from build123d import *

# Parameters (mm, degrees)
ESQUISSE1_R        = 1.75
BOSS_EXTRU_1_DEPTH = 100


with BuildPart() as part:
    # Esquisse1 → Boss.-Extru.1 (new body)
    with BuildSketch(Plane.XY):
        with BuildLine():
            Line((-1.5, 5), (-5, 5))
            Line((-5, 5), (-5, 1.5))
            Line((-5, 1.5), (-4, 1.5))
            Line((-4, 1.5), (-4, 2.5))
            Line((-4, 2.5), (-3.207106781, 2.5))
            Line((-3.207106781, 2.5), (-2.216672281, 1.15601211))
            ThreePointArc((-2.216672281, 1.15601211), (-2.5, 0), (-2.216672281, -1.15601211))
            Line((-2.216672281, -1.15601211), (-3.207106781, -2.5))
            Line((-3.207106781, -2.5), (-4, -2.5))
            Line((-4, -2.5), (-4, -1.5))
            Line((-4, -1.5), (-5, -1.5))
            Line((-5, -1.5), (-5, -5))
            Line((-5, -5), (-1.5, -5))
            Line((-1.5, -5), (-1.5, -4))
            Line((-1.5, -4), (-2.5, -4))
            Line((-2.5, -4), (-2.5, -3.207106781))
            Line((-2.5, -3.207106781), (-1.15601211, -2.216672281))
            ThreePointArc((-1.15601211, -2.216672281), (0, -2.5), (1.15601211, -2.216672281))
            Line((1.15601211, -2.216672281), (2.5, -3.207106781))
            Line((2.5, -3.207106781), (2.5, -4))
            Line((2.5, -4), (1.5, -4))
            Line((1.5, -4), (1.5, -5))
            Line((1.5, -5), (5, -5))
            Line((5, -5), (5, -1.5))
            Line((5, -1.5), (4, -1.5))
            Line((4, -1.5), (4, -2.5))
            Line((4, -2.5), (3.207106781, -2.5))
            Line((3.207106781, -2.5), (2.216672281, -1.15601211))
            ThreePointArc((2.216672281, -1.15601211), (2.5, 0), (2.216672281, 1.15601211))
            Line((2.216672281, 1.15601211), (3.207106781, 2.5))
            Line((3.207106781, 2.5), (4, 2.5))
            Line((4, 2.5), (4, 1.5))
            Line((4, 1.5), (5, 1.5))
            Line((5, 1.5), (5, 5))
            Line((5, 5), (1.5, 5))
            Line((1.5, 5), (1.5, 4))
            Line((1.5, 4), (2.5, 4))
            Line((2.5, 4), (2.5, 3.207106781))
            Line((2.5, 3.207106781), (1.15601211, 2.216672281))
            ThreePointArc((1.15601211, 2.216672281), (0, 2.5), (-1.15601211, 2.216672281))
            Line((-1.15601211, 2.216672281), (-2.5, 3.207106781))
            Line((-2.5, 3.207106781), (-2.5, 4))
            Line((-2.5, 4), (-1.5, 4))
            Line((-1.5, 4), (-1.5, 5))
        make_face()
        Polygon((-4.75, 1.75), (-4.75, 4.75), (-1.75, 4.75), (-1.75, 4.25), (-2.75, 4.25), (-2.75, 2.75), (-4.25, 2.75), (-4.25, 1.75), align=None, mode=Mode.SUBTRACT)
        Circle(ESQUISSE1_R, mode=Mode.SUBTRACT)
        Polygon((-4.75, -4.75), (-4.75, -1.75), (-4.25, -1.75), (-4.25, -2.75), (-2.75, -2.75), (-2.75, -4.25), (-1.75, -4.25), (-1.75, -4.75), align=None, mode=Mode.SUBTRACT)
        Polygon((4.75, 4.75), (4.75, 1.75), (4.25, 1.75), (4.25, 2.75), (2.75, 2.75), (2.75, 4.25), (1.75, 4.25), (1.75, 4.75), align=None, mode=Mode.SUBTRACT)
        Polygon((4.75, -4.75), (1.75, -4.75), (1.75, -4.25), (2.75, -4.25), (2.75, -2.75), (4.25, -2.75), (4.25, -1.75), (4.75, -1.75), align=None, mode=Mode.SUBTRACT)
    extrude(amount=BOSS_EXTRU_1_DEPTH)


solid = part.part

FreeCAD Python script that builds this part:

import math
import FreeCAD as App
import Part
import Sketcher
from FreeCAD import Vector
Q = App.Units.Quantity

doc = App.newDocument("Part")
body = doc.addObject("PartDesign::Body", "Body")

# Sketch on XY plane
sketch1 = body.newObject("Sketcher::SketchObject", "Sketch")
sketch1.AttachmentSupport = (doc.getObject("XY_Plane"), [""])
sketch1.MapMode = "FlatFace"
sketch1.addGeometry([
    Part.LineSegment(Vector(-1.5, 5, 0), Vector(-5, 5, 0)),  # 0
    Part.LineSegment(Vector(-5, 5, 0), Vector(-5, 1.5, 0)),  # 1
    Part.LineSegment(Vector(-5, 1.5, 0), Vector(-4, 1.5, 0)),  # 2
    Part.LineSegment(Vector(-4, 1.5, 0), Vector(-4, 2.5, 0)),  # 3
    Part.LineSegment(Vector(-4, 2.5, 0), Vector(-3.2, 2.5, 0)),  # 4
    Part.LineSegment(Vector(-3.2, 2.5, 0), Vector(-2.2, 1.2, 0)),  # 5
    Part.ArcOfCircle(Part.Circle(Vector(0, 0, 0), Vector(0, 0, 1), 2.5), math.radians(152), math.radians(208)),  # 6
    Part.LineSegment(Vector(-2.2, -1.2, 0), Vector(-3.2, -2.5, 0)),  # 7
    Part.LineSegment(Vector(-3.2, -2.5, 0), Vector(-4, -2.5, 0)),  # 8
    Part.LineSegment(Vector(-4, -2.5, 0), Vector(-4, -1.5, 0)),  # 9
    Part.LineSegment(Vector(-4, -1.5, 0), Vector(-5, -1.5, 0)),  # 10
    Part.LineSegment(Vector(-5, -1.5, 0), Vector(-5, -5, 0)),  # 11
    Part.LineSegment(Vector(-5, -5, 0), Vector(-1.5, -5, 0)),  # 12
    Part.LineSegment(Vector(-1.5, -5, 0), Vector(-1.5, -4, 0)),  # 13
    Part.LineSegment(Vector(-1.5, -4, 0), Vector(-2.5, -4, 0)),  # 14
    Part.LineSegment(Vector(-2.5, -4, 0), Vector(-2.5, -3.2, 0)),  # 15
    Part.LineSegment(Vector(-2.5, -3.2, 0), Vector(-1.2, -2.2, 0)),  # 16
    Part.ArcOfCircle(Part.Circle(Vector(0, 0, 0), Vector(0, 0, 1), 2.5), math.radians(-118), math.radians(-62)),  # 17
    Part.LineSegment(Vector(1.2, -2.2, 0), Vector(2.5, -3.2, 0)),  # 18
    Part.LineSegment(Vector(2.5, -3.2, 0), Vector(2.5, -4, 0)),  # 19
    Part.LineSegment(Vector(2.5, -4, 0), Vector(1.5, -4, 0)),  # 20
    Part.LineSegment(Vector(1.5, -4, 0), Vector(1.5, -5, 0)),  # 21
    Part.LineSegment(Vector(1.5, -5, 0), Vector(5, -5, 0)),  # 22
    Part.LineSegment(Vector(5, -5, 0), Vector(5, -1.5, 0)),  # 23
    Part.LineSegment(Vector(5, -1.5, 0), Vector(4, -1.5, 0)),  # 24
    Part.LineSegment(Vector(4, -1.5, 0), Vector(4, -2.5, 0)),  # 25
    Part.LineSegment(Vector(4, -2.5, 0), Vector(3.2, -2.5, 0)),  # 26
    Part.LineSegment(Vector(3.2, -2.5, 0), Vector(2.2, -1.2, 0)),  # 27
    Part.ArcOfCircle(Part.Circle(Vector(0, 0, 0), Vector(0, 0, 1), 2.5), math.radians(-28), math.radians(28)),  # 28
    Part.LineSegment(Vector(2.2, 1.2, 0), Vector(3.2, 2.5, 0)),  # 29
    Part.LineSegment(Vector(3.2, 2.5, 0), Vector(4, 2.5, 0)),  # 30
    Part.LineSegment(Vector(4, 2.5, 0), Vector(4, 1.5, 0)),  # 31
    Part.LineSegment(Vector(4, 1.5, 0), Vector(5, 1.5, 0)),  # 32
    Part.LineSegment(Vector(5, 1.5, 0), Vector(5, 5, 0)),  # 33
    Part.LineSegment(Vector(5, 5, 0), Vector(1.5, 5, 0)),  # 34
    Part.LineSegment(Vector(1.5, 5, 0), Vector(1.5, 4, 0)),  # 35
    Part.LineSegment(Vector(1.5, 4, 0), Vector(2.5, 4, 0)),  # 36
    Part.LineSegment(Vector(2.5, 4, 0), Vector(2.5, 3.2, 0)),  # 37
    Part.LineSegment(Vector(2.5, 3.2, 0), Vector(1.2, 2.2, 0)),  # 38
    Part.ArcOfCircle(Part.Circle(Vector(0, 0, 0), Vector(0, 0, 1), 2.5), math.radians(62), math.radians(118)),  # 39
    Part.LineSegment(Vector(-1.2, 2.2, 0), Vector(-2.5, 3.2, 0)),  # 40
    Part.LineSegment(Vector(-2.5, 3.2, 0), Vector(-2.5, 4, 0)),  # 41
    Part.LineSegment(Vector(-2.5, 4, 0), Vector(-1.5, 4, 0)),  # 42
    Part.LineSegment(Vector(-1.5, 4, 0), Vector(-1.5, 5, 0)),  # 43
    Part.LineSegment(Vector(-1.8, -4.8, 0), Vector(-4.8, -4.8, 0)),  # 44
    Part.LineSegment(Vector(-4.8, -4.8, 0), Vector(-4.8, -1.8, 0)),  # 45
    Part.LineSegment(Vector(-4.8, -1.8, 0), Vector(-4.2, -1.8, 0)),  # 46
    Part.LineSegment(Vector(-4.2, -1.8, 0), Vector(-4.2, -2.8, 0)),  # 47
    Part.LineSegment(Vector(-4.2, -2.8, 0), Vector(-2.8, -2.8, 0)),  # 48
    Part.LineSegment(Vector(-2.8, -2.8, 0), Vector(-2.8, -4.2, 0)),  # 49
    Part.LineSegment(Vector(-2.8, -4.2, 0), Vector(-1.8, -4.2, 0)),  # 50
    Part.LineSegment(Vector(-1.8, -4.2, 0), Vector(-1.8, -4.8, 0)),  # 51
    Part.LineSegment(Vector(4.8, -1.8, 0), Vector(4.8, -4.8, 0)),  # 52
    Part.LineSegment(Vector(4.8, -4.8, 0), Vector(1.8, -4.8, 0)),  # 53
    Part.LineSegment(Vector(1.8, -4.8, 0), Vector(1.8, -4.2, 0)),  # 54
    Part.LineSegment(Vector(1.8, -4.2, 0), Vector(2.8, -4.2, 0)),  # 55
    Part.LineSegment(Vector(2.8, -4.2, 0), Vector(2.8, -2.8, 0)),  # 56
    Part.LineSegment(Vector(2.8, -2.8, 0), Vector(4.2, -2.8, 0)),  # 57
    Part.LineSegment(Vector(4.2, -2.8, 0), Vector(4.2, -1.8, 0)),  # 58
    Part.LineSegment(Vector(4.2, -1.8, 0), Vector(4.8, -1.8, 0)),  # 59
    Part.LineSegment(Vector(-4.2, 1.8, 0), Vector(-4.8, 1.8, 0)),  # 60
    Part.LineSegment(Vector(-4.8, 1.8, 0), Vector(-4.8, 4.8, 0)),  # 61
    Part.LineSegment(Vector(-4.8, 4.8, 0), Vector(-1.8, 4.8, 0)),  # 62
    Part.LineSegment(Vector(-1.8, 4.8, 0), Vector(-1.8, 4.2, 0)),  # 63
    Part.LineSegment(Vector(-1.8, 4.2, 0), Vector(-2.8, 4.2, 0)),  # 64
    Part.LineSegment(Vector(-2.8, 4.2, 0), Vector(-2.8, 2.8, 0)),  # 65
    Part.LineSegment(Vector(-2.8, 2.8, 0), Vector(-4.2, 2.8, 0)),  # 66
    Part.LineSegment(Vector(-4.2, 2.8, 0), Vector(-4.2, 1.8, 0)),  # 67
    Part.Circle(Vector(0, 0, 0), Vector(0, 0, 1), 1.8),  # 68
    Part.LineSegment(Vector(1.8, 4.8, 0), Vector(4.8, 4.8, 0)),  # 69
    Part.LineSegment(Vector(4.8, 4.8, 0), Vector(4.8, 1.8, 0)),  # 70
    Part.LineSegment(Vector(4.8, 1.8, 0), Vector(4.2, 1.8, 0)),  # 71
    Part.LineSegment(Vector(4.2, 1.8, 0), Vector(4.2, 2.8, 0)),  # 72
    Part.LineSegment(Vector(4.2, 2.8, 0), Vector(2.8, 2.8, 0)),  # 73
    Part.LineSegment(Vector(2.8, 2.8, 0), Vector(2.8, 4.2, 0)),  # 74
    Part.LineSegment(Vector(2.8, 4.2, 0), Vector(1.8, 4.2, 0)),  # 75
    Part.LineSegment(Vector(1.8, 4.2, 0), Vector(1.8, 4.8, 0)),  # 76
], False)
sketch1.addConstraint([
    Sketcher.Constraint("Coincident", 0, 2, 1, 1),
    Sketcher.Constraint("Coincident", 1, 2, 2, 1),
    Sketcher.Constraint("Coincident", 2, 2, 3, 1),
    Sketcher.Constraint("Coincident", 3, 2, 4, 1),
    Sketcher.Constraint("Coincident", 4, 2, 5, 1),
    Sketcher.Constraint("Coincident", 5, 2, 6, 1),
    Sketcher.Constraint("Coincident", 6, 2, 7, 1),
    Sketcher.Constraint("Coincident", 7, 2, 8, 1),
    Sketcher.Constraint("Coincident", 8, 2, 9, 1),
    Sketcher.Constraint("Coincident", 9, 2, 10, 1),
    Sketcher.Constraint("Coincident", 10, 2, 11, 1),
    Sketcher.Constraint("Coincident", 11, 2, 12, 1),
    Sketcher.Constraint("Coincident", 12, 2, 13, 1),
    Sketcher.Constraint("Coincident", 13, 2, 14, 1),
    Sketcher.Constraint("Coincident", 14, 2, 15, 1),
    Sketcher.Constraint("Coincident", 15, 2, 16, 1),
    Sketcher.Constraint("Coincident", 16, 2, 17, 1),
    Sketcher.Constraint("Coincident", 17, 2, 18, 1),
    Sketcher.Constraint("Coincident", 18, 2, 19, 1),
    Sketcher.Constraint("Coincident", 19, 2, 20, 1),
    Sketcher.Constraint("Coincident", 20, 2, 21, 1),
    Sketcher.Constraint("Coincident", 21, 2, 22, 1),
    Sketcher.Constraint("Coincident", 22, 2, 23, 1),
    Sketcher.Constraint("Coincident", 23, 2, 24, 1),
    Sketcher.Constraint("Coincident", 24, 2, 25, 1),
    Sketcher.Constraint("Coincident", 25, 2, 26, 1),
    Sketcher.Constraint("Coincident", 26, 2, 27, 1),
    Sketcher.Constraint("Coincident", 27, 2, 28, 1),
    Sketcher.Constraint("Coincident", 28, 2, 29, 1),
    Sketcher.Constraint("Coincident", 29, 2, 30, 1),
    Sketcher.Constraint("Coincident", 30, 2, 31, 1),
    Sketcher.Constraint("Coincident", 31, 2, 32, 1),
    Sketcher.Constraint("Coincident", 32, 2, 33, 1),
    Sketcher.Constraint("Coincident", 33, 2, 34, 1),
    Sketcher.Constraint("Coincident", 34, 2, 35, 1),
    Sketcher.Constraint("Coincident", 35, 2, 36, 1),
    Sketcher.Constraint("Coincident", 36, 2, 37, 1),
    Sketcher.Constraint("Coincident", 37, 2, 38, 1),
    Sketcher.Constraint("Coincident", 38, 2, 39, 1),
    Sketcher.Constraint("Coincident", 39, 2, 40, 1),
    Sketcher.Constraint("Coincident", 40, 2, 41, 1),
    Sketcher.Constraint("Coincident", 41, 2, 42, 1),
    Sketcher.Constraint("Coincident", 42, 2, 43, 1),
    Sketcher.Constraint("Coincident", 43, 2, 0, 1),
    Sketcher.Constraint("Coincident", 44, 2, 45, 1),
    Sketcher.Constraint("Coincident", 45, 2, 46, 1),
    Sketcher.Constraint("Coincident", 46, 2, 47, 1),
    Sketcher.Constraint("Coincident", 47, 2, 48, 1),
    Sketcher.Constraint("Coincident", 48, 2, 49, 1),
    Sketcher.Constraint("Coincident", 49, 2, 50, 1),
    Sketcher.Constraint("Coincident", 50, 2, 51, 1),
    Sketcher.Constraint("Coincident", 51, 2, 44, 1),
    Sketcher.Constraint("Coincident", 52, 2, 53, 1),
    Sketcher.Constraint("Coincident", 53, 2, 54, 1),
    Sketcher.Constraint("Coincident", 54, 2, 55, 1),
    Sketcher.Constraint("Coincident", 55, 2, 56, 1),
    Sketcher.Constraint("Coincident", 56, 2, 57, 1),
    Sketcher.Constraint("Coincident", 57, 2, 58, 1),
    Sketcher.Constraint("Coincident", 58, 2, 59, 1),
    Sketcher.Constraint("Coincident", 59, 2, 52, 1),
    Sketcher.Constraint("Coincident", 60, 2, 61, 1),
    Sketcher.Constraint("Coincident", 61, 2, 62, 1),
    Sketcher.Constraint("Coincident", 62, 2, 63, 1),
    Sketcher.Constraint("Coincident", 63, 2, 64, 1),
    Sketcher.Constraint("Coincident", 64, 2, 65, 1),
    Sketcher.Constraint("Coincident", 65, 2, 66, 1),
    Sketcher.Constraint("Coincident", 66, 2, 67, 1),
    Sketcher.Constraint("Coincident", 67, 2, 60, 1),
    Sketcher.Constraint("Coincident", 69, 2, 70, 1),
    Sketcher.Constraint("Coincident", 70, 2, 71, 1),
    Sketcher.Constraint("Coincident", 71, 2, 72, 1),
    Sketcher.Constraint("Coincident", 72, 2, 73, 1),
    Sketcher.Constraint("Coincident", 73, 2, 74, 1),
    Sketcher.Constraint("Coincident", 74, 2, 75, 1),
    Sketcher.Constraint("Coincident", 75, 2, 76, 1),
    Sketcher.Constraint("Coincident", 76, 2, 69, 1),
    Sketcher.Constraint("Horizontal", 0),
    Sketcher.Constraint("Vertical", 1),
    Sketcher.Constraint("Horizontal", 2),
    Sketcher.Constraint("Vertical", 3),
    Sketcher.Constraint("Horizontal", 4),
    Sketcher.Constraint("Horizontal", 8),
    Sketcher.Constraint("Vertical", 9),
    Sketcher.Constraint("Horizontal", 10),
    Sketcher.Constraint("Vertical", 11),
    Sketcher.Constraint("Horizontal", 12),
    Sketcher.Constraint("Vertical", 13),
    Sketcher.Constraint("Horizontal", 14),
    Sketcher.Constraint("Vertical", 15),
    Sketcher.Constraint("Vertical", 19),
    Sketcher.Constraint("Horizontal", 20),
    Sketcher.Constraint("Vertical", 21),
    Sketcher.Constraint("Horizontal", 22),
    Sketcher.Constraint("Vertical", 23),
    Sketcher.Constraint("Horizontal", 24),
    Sketcher.Constraint("Vertical", 25),
    Sketcher.Constraint("Horizontal", 26),
    Sketcher.Constraint("Horizontal", 30),
    Sketcher.Constraint("Vertical", 31),
    Sketcher.Constraint("Horizontal", 32),
    Sketcher.Constraint("Vertical", 33),
    Sketcher.Constraint("Horizontal", 34),
    Sketcher.Constraint("Vertical", 35),
    Sketcher.Constraint("Horizontal", 36),
    Sketcher.Constraint("Vertical", 37),
    Sketcher.Constraint("Vertical", 41),
    Sketcher.Constraint("Horizontal", 42),
    Sketcher.Constraint("Vertical", 43),
    Sketcher.Constraint("Horizontal", 44),
    Sketcher.Constraint("Vertical", 45),
    Sketcher.Constraint("Horizontal", 46),
    Sketcher.Constraint("Vertical", 47),
    Sketcher.Constraint("Horizontal", 48),
    Sketcher.Constraint("Vertical", 49),
    Sketcher.Constraint("Horizontal", 50),
    Sketcher.Constraint("Vertical", 51),
    Sketcher.Constraint("Vertical", 52),
    Sketcher.Constraint("Horizontal", 53),
    Sketcher.Constraint("Vertical", 54),
    Sketcher.Constraint("Horizontal", 55),
    Sketcher.Constraint("Vertical", 56),
    Sketcher.Constraint("Horizontal", 57),
    Sketcher.Constraint("Vertical", 58),
    Sketcher.Constraint("Horizontal", 59),
    Sketcher.Constraint("Horizontal", 60),
    Sketcher.Constraint("Vertical", 61),
    Sketcher.Constraint("Horizontal", 62),
    Sketcher.Constraint("Vertical", 63),
    Sketcher.Constraint("Horizontal", 64),
    Sketcher.Constraint("Vertical", 65),
    Sketcher.Constraint("Horizontal", 66),
    Sketcher.Constraint("Vertical", 67),
    Sketcher.Constraint("Horizontal", 69),
    Sketcher.Constraint("Vertical", 70),
    Sketcher.Constraint("Horizontal", 71),
    Sketcher.Constraint("Vertical", 72),
    Sketcher.Constraint("Horizontal", 73),
    Sketcher.Constraint("Vertical", 74),
    Sketcher.Constraint("Horizontal", 75),
    Sketcher.Constraint("Vertical", 76),
    Sketcher.Constraint("Coincident", 6, 3, -1, 1),
    Sketcher.Constraint("Coincident", 17, 3, -1, 1),
    Sketcher.Constraint("Coincident", 28, 3, -1, 1),
    Sketcher.Constraint("Coincident", 39, 3, -1, 1),
    Sketcher.Constraint("Coincident", 68, 3, -1, 1),
    Sketcher.Constraint("Equal", 6, 17),
    Sketcher.Constraint("Equal", 17, 28),
    Sketcher.Constraint("Equal", 28, 39),
    Sketcher.Constraint("Symmetric", 0, 2, 22, 2, -1, 1),
    Sketcher.Constraint("Symmetric", 2, 2, 24, 2, -1, 1),
    Sketcher.Constraint("Symmetric", 4, 2, 26, 2, -1, 1),
    Sketcher.Constraint("Symmetric", 7, 2, 29, 2, -1, 1),
    Sketcher.Constraint("Symmetric", 9, 2, 31, 2, -1, 1),
    Sketcher.Constraint("Symmetric", 11, 2, 33, 2, -1, 1),
    Sketcher.Constraint("Symmetric", 13, 2, 35, 2, -1, 1),
    Sketcher.Constraint("Symmetric", 15, 2, 37, 2, -1, 1),
    Sketcher.Constraint("Symmetric", 18, 2, 40, 2, -1, 1),
    Sketcher.Constraint("Symmetric", 20, 2, 42, 2, -1, 1),
    Sketcher.Constraint("Symmetric", 59, 2, 60, 2, -1, 1),
    Sketcher.Constraint("Symmetric", 53, 2, 62, 2, -1, 1),
    Sketcher.Constraint("Symmetric", 55, 2, 64, 2, -1, 1),
    Sketcher.Constraint("Symmetric", 57, 2, 66, 2, -1, 1),
    Sketcher.Constraint("Symmetric", 44, 2, 69, 2, -1, 1),
    Sketcher.Constraint("Symmetric", 46, 2, 71, 2, -1, 1),
    Sketcher.Constraint("Symmetric", 48, 2, 73, 2, -1, 1),
    Sketcher.Constraint("Symmetric", 50, 2, 75, 2, -1, 1),
    Sketcher.Constraint("Symmetric", 15, 2, 18, 2, -2),
    Sketcher.Constraint("Symmetric", 13, 2, 20, 2, -2),
    Sketcher.Constraint("Symmetric", 11, 2, 22, 2, -2),
    Sketcher.Constraint("Symmetric", 9, 2, 24, 2, -2),
    Sketcher.Constraint("Symmetric", 7, 2, 26, 2, -2),
    Sketcher.Constraint("Symmetric", 44, 2, 52, 2, -2),
    Sketcher.Constraint("Symmetric", 50, 2, 54, 2, -2),
    Sketcher.Constraint("Symmetric", 48, 2, 56, 2, -2),
    Sketcher.Constraint("Symmetric", 46, 2, 58, 2, -2),
    Sketcher.Constraint("Perpendicular", 5, 16),
    Sketcher.Constraint("Perpendicular", 7, 18),
    Sketcher.Constraint("Perpendicular", 16, 27),
    Sketcher.Constraint("Perpendicular", 18, 29),
    Sketcher.Constraint("Perpendicular", 27, 38),
    Sketcher.Constraint("Perpendicular", 29, 40),
    Sketcher.Constraint("Horizontal", 16, 2, 17, 2),
    Sketcher.Constraint("Equal", 10, 14),
    Sketcher.Constraint("Equal", 42, 50),
    Sketcher.Constraint("Equal", 34, 1),
    Sketcher.Constraint("Equal", 75, 3),
    Sketcher.Constraint("Equal", 9, 13),
    Sketcher.Constraint("Equal", 30, 15),
    Sketcher.Constraint("Equal", 69, 45),
    Sketcher.Constraint("Equal", 43, 47),
    Sketcher.Constraint("Equal", 73, 49),
    Sketcher.Constraint("Equal", 7, 16),
    Sketcher.Constraint("Diameter", 68, Q("3.5 mm")),
    Sketcher.Constraint("Radius", 6, Q("2.5 mm")),
    Sketcher.Constraint("DistanceX", 2, 1, 2, 2, Q("1 mm")),
    Sketcher.Constraint("DistanceX", 44, 2, 44, 1, Q("3 mm")),
    Sketcher.Constraint("DistanceX", 0, 2, 0, 1, Q("3.5 mm")),
    Sketcher.Constraint("DistanceX", 46, 1, 46, 2, Q("0.5 mm")),
    Sketcher.Constraint("DistanceX", 0, 2, -1, 1, Q("5 mm")),
    Sketcher.Constraint("DistanceX", 44, 2, -1, 1, Q("4.75 mm")),
    Sketcher.Constraint("DistanceY", 44, 2, -1, 1, Q("4.75 mm")),
    Sketcher.Constraint("Distance", 5, Q("1.66951 mm")),
    Sketcher.Constraint("DistanceX", 4, 1, 4, 2, Q("0.792893 mm")),
])
pad1 = body.newObject("PartDesign::Pad", "Pad")
pad1.Profile = sketch1
pad1.Length = 100

doc.recompute()
